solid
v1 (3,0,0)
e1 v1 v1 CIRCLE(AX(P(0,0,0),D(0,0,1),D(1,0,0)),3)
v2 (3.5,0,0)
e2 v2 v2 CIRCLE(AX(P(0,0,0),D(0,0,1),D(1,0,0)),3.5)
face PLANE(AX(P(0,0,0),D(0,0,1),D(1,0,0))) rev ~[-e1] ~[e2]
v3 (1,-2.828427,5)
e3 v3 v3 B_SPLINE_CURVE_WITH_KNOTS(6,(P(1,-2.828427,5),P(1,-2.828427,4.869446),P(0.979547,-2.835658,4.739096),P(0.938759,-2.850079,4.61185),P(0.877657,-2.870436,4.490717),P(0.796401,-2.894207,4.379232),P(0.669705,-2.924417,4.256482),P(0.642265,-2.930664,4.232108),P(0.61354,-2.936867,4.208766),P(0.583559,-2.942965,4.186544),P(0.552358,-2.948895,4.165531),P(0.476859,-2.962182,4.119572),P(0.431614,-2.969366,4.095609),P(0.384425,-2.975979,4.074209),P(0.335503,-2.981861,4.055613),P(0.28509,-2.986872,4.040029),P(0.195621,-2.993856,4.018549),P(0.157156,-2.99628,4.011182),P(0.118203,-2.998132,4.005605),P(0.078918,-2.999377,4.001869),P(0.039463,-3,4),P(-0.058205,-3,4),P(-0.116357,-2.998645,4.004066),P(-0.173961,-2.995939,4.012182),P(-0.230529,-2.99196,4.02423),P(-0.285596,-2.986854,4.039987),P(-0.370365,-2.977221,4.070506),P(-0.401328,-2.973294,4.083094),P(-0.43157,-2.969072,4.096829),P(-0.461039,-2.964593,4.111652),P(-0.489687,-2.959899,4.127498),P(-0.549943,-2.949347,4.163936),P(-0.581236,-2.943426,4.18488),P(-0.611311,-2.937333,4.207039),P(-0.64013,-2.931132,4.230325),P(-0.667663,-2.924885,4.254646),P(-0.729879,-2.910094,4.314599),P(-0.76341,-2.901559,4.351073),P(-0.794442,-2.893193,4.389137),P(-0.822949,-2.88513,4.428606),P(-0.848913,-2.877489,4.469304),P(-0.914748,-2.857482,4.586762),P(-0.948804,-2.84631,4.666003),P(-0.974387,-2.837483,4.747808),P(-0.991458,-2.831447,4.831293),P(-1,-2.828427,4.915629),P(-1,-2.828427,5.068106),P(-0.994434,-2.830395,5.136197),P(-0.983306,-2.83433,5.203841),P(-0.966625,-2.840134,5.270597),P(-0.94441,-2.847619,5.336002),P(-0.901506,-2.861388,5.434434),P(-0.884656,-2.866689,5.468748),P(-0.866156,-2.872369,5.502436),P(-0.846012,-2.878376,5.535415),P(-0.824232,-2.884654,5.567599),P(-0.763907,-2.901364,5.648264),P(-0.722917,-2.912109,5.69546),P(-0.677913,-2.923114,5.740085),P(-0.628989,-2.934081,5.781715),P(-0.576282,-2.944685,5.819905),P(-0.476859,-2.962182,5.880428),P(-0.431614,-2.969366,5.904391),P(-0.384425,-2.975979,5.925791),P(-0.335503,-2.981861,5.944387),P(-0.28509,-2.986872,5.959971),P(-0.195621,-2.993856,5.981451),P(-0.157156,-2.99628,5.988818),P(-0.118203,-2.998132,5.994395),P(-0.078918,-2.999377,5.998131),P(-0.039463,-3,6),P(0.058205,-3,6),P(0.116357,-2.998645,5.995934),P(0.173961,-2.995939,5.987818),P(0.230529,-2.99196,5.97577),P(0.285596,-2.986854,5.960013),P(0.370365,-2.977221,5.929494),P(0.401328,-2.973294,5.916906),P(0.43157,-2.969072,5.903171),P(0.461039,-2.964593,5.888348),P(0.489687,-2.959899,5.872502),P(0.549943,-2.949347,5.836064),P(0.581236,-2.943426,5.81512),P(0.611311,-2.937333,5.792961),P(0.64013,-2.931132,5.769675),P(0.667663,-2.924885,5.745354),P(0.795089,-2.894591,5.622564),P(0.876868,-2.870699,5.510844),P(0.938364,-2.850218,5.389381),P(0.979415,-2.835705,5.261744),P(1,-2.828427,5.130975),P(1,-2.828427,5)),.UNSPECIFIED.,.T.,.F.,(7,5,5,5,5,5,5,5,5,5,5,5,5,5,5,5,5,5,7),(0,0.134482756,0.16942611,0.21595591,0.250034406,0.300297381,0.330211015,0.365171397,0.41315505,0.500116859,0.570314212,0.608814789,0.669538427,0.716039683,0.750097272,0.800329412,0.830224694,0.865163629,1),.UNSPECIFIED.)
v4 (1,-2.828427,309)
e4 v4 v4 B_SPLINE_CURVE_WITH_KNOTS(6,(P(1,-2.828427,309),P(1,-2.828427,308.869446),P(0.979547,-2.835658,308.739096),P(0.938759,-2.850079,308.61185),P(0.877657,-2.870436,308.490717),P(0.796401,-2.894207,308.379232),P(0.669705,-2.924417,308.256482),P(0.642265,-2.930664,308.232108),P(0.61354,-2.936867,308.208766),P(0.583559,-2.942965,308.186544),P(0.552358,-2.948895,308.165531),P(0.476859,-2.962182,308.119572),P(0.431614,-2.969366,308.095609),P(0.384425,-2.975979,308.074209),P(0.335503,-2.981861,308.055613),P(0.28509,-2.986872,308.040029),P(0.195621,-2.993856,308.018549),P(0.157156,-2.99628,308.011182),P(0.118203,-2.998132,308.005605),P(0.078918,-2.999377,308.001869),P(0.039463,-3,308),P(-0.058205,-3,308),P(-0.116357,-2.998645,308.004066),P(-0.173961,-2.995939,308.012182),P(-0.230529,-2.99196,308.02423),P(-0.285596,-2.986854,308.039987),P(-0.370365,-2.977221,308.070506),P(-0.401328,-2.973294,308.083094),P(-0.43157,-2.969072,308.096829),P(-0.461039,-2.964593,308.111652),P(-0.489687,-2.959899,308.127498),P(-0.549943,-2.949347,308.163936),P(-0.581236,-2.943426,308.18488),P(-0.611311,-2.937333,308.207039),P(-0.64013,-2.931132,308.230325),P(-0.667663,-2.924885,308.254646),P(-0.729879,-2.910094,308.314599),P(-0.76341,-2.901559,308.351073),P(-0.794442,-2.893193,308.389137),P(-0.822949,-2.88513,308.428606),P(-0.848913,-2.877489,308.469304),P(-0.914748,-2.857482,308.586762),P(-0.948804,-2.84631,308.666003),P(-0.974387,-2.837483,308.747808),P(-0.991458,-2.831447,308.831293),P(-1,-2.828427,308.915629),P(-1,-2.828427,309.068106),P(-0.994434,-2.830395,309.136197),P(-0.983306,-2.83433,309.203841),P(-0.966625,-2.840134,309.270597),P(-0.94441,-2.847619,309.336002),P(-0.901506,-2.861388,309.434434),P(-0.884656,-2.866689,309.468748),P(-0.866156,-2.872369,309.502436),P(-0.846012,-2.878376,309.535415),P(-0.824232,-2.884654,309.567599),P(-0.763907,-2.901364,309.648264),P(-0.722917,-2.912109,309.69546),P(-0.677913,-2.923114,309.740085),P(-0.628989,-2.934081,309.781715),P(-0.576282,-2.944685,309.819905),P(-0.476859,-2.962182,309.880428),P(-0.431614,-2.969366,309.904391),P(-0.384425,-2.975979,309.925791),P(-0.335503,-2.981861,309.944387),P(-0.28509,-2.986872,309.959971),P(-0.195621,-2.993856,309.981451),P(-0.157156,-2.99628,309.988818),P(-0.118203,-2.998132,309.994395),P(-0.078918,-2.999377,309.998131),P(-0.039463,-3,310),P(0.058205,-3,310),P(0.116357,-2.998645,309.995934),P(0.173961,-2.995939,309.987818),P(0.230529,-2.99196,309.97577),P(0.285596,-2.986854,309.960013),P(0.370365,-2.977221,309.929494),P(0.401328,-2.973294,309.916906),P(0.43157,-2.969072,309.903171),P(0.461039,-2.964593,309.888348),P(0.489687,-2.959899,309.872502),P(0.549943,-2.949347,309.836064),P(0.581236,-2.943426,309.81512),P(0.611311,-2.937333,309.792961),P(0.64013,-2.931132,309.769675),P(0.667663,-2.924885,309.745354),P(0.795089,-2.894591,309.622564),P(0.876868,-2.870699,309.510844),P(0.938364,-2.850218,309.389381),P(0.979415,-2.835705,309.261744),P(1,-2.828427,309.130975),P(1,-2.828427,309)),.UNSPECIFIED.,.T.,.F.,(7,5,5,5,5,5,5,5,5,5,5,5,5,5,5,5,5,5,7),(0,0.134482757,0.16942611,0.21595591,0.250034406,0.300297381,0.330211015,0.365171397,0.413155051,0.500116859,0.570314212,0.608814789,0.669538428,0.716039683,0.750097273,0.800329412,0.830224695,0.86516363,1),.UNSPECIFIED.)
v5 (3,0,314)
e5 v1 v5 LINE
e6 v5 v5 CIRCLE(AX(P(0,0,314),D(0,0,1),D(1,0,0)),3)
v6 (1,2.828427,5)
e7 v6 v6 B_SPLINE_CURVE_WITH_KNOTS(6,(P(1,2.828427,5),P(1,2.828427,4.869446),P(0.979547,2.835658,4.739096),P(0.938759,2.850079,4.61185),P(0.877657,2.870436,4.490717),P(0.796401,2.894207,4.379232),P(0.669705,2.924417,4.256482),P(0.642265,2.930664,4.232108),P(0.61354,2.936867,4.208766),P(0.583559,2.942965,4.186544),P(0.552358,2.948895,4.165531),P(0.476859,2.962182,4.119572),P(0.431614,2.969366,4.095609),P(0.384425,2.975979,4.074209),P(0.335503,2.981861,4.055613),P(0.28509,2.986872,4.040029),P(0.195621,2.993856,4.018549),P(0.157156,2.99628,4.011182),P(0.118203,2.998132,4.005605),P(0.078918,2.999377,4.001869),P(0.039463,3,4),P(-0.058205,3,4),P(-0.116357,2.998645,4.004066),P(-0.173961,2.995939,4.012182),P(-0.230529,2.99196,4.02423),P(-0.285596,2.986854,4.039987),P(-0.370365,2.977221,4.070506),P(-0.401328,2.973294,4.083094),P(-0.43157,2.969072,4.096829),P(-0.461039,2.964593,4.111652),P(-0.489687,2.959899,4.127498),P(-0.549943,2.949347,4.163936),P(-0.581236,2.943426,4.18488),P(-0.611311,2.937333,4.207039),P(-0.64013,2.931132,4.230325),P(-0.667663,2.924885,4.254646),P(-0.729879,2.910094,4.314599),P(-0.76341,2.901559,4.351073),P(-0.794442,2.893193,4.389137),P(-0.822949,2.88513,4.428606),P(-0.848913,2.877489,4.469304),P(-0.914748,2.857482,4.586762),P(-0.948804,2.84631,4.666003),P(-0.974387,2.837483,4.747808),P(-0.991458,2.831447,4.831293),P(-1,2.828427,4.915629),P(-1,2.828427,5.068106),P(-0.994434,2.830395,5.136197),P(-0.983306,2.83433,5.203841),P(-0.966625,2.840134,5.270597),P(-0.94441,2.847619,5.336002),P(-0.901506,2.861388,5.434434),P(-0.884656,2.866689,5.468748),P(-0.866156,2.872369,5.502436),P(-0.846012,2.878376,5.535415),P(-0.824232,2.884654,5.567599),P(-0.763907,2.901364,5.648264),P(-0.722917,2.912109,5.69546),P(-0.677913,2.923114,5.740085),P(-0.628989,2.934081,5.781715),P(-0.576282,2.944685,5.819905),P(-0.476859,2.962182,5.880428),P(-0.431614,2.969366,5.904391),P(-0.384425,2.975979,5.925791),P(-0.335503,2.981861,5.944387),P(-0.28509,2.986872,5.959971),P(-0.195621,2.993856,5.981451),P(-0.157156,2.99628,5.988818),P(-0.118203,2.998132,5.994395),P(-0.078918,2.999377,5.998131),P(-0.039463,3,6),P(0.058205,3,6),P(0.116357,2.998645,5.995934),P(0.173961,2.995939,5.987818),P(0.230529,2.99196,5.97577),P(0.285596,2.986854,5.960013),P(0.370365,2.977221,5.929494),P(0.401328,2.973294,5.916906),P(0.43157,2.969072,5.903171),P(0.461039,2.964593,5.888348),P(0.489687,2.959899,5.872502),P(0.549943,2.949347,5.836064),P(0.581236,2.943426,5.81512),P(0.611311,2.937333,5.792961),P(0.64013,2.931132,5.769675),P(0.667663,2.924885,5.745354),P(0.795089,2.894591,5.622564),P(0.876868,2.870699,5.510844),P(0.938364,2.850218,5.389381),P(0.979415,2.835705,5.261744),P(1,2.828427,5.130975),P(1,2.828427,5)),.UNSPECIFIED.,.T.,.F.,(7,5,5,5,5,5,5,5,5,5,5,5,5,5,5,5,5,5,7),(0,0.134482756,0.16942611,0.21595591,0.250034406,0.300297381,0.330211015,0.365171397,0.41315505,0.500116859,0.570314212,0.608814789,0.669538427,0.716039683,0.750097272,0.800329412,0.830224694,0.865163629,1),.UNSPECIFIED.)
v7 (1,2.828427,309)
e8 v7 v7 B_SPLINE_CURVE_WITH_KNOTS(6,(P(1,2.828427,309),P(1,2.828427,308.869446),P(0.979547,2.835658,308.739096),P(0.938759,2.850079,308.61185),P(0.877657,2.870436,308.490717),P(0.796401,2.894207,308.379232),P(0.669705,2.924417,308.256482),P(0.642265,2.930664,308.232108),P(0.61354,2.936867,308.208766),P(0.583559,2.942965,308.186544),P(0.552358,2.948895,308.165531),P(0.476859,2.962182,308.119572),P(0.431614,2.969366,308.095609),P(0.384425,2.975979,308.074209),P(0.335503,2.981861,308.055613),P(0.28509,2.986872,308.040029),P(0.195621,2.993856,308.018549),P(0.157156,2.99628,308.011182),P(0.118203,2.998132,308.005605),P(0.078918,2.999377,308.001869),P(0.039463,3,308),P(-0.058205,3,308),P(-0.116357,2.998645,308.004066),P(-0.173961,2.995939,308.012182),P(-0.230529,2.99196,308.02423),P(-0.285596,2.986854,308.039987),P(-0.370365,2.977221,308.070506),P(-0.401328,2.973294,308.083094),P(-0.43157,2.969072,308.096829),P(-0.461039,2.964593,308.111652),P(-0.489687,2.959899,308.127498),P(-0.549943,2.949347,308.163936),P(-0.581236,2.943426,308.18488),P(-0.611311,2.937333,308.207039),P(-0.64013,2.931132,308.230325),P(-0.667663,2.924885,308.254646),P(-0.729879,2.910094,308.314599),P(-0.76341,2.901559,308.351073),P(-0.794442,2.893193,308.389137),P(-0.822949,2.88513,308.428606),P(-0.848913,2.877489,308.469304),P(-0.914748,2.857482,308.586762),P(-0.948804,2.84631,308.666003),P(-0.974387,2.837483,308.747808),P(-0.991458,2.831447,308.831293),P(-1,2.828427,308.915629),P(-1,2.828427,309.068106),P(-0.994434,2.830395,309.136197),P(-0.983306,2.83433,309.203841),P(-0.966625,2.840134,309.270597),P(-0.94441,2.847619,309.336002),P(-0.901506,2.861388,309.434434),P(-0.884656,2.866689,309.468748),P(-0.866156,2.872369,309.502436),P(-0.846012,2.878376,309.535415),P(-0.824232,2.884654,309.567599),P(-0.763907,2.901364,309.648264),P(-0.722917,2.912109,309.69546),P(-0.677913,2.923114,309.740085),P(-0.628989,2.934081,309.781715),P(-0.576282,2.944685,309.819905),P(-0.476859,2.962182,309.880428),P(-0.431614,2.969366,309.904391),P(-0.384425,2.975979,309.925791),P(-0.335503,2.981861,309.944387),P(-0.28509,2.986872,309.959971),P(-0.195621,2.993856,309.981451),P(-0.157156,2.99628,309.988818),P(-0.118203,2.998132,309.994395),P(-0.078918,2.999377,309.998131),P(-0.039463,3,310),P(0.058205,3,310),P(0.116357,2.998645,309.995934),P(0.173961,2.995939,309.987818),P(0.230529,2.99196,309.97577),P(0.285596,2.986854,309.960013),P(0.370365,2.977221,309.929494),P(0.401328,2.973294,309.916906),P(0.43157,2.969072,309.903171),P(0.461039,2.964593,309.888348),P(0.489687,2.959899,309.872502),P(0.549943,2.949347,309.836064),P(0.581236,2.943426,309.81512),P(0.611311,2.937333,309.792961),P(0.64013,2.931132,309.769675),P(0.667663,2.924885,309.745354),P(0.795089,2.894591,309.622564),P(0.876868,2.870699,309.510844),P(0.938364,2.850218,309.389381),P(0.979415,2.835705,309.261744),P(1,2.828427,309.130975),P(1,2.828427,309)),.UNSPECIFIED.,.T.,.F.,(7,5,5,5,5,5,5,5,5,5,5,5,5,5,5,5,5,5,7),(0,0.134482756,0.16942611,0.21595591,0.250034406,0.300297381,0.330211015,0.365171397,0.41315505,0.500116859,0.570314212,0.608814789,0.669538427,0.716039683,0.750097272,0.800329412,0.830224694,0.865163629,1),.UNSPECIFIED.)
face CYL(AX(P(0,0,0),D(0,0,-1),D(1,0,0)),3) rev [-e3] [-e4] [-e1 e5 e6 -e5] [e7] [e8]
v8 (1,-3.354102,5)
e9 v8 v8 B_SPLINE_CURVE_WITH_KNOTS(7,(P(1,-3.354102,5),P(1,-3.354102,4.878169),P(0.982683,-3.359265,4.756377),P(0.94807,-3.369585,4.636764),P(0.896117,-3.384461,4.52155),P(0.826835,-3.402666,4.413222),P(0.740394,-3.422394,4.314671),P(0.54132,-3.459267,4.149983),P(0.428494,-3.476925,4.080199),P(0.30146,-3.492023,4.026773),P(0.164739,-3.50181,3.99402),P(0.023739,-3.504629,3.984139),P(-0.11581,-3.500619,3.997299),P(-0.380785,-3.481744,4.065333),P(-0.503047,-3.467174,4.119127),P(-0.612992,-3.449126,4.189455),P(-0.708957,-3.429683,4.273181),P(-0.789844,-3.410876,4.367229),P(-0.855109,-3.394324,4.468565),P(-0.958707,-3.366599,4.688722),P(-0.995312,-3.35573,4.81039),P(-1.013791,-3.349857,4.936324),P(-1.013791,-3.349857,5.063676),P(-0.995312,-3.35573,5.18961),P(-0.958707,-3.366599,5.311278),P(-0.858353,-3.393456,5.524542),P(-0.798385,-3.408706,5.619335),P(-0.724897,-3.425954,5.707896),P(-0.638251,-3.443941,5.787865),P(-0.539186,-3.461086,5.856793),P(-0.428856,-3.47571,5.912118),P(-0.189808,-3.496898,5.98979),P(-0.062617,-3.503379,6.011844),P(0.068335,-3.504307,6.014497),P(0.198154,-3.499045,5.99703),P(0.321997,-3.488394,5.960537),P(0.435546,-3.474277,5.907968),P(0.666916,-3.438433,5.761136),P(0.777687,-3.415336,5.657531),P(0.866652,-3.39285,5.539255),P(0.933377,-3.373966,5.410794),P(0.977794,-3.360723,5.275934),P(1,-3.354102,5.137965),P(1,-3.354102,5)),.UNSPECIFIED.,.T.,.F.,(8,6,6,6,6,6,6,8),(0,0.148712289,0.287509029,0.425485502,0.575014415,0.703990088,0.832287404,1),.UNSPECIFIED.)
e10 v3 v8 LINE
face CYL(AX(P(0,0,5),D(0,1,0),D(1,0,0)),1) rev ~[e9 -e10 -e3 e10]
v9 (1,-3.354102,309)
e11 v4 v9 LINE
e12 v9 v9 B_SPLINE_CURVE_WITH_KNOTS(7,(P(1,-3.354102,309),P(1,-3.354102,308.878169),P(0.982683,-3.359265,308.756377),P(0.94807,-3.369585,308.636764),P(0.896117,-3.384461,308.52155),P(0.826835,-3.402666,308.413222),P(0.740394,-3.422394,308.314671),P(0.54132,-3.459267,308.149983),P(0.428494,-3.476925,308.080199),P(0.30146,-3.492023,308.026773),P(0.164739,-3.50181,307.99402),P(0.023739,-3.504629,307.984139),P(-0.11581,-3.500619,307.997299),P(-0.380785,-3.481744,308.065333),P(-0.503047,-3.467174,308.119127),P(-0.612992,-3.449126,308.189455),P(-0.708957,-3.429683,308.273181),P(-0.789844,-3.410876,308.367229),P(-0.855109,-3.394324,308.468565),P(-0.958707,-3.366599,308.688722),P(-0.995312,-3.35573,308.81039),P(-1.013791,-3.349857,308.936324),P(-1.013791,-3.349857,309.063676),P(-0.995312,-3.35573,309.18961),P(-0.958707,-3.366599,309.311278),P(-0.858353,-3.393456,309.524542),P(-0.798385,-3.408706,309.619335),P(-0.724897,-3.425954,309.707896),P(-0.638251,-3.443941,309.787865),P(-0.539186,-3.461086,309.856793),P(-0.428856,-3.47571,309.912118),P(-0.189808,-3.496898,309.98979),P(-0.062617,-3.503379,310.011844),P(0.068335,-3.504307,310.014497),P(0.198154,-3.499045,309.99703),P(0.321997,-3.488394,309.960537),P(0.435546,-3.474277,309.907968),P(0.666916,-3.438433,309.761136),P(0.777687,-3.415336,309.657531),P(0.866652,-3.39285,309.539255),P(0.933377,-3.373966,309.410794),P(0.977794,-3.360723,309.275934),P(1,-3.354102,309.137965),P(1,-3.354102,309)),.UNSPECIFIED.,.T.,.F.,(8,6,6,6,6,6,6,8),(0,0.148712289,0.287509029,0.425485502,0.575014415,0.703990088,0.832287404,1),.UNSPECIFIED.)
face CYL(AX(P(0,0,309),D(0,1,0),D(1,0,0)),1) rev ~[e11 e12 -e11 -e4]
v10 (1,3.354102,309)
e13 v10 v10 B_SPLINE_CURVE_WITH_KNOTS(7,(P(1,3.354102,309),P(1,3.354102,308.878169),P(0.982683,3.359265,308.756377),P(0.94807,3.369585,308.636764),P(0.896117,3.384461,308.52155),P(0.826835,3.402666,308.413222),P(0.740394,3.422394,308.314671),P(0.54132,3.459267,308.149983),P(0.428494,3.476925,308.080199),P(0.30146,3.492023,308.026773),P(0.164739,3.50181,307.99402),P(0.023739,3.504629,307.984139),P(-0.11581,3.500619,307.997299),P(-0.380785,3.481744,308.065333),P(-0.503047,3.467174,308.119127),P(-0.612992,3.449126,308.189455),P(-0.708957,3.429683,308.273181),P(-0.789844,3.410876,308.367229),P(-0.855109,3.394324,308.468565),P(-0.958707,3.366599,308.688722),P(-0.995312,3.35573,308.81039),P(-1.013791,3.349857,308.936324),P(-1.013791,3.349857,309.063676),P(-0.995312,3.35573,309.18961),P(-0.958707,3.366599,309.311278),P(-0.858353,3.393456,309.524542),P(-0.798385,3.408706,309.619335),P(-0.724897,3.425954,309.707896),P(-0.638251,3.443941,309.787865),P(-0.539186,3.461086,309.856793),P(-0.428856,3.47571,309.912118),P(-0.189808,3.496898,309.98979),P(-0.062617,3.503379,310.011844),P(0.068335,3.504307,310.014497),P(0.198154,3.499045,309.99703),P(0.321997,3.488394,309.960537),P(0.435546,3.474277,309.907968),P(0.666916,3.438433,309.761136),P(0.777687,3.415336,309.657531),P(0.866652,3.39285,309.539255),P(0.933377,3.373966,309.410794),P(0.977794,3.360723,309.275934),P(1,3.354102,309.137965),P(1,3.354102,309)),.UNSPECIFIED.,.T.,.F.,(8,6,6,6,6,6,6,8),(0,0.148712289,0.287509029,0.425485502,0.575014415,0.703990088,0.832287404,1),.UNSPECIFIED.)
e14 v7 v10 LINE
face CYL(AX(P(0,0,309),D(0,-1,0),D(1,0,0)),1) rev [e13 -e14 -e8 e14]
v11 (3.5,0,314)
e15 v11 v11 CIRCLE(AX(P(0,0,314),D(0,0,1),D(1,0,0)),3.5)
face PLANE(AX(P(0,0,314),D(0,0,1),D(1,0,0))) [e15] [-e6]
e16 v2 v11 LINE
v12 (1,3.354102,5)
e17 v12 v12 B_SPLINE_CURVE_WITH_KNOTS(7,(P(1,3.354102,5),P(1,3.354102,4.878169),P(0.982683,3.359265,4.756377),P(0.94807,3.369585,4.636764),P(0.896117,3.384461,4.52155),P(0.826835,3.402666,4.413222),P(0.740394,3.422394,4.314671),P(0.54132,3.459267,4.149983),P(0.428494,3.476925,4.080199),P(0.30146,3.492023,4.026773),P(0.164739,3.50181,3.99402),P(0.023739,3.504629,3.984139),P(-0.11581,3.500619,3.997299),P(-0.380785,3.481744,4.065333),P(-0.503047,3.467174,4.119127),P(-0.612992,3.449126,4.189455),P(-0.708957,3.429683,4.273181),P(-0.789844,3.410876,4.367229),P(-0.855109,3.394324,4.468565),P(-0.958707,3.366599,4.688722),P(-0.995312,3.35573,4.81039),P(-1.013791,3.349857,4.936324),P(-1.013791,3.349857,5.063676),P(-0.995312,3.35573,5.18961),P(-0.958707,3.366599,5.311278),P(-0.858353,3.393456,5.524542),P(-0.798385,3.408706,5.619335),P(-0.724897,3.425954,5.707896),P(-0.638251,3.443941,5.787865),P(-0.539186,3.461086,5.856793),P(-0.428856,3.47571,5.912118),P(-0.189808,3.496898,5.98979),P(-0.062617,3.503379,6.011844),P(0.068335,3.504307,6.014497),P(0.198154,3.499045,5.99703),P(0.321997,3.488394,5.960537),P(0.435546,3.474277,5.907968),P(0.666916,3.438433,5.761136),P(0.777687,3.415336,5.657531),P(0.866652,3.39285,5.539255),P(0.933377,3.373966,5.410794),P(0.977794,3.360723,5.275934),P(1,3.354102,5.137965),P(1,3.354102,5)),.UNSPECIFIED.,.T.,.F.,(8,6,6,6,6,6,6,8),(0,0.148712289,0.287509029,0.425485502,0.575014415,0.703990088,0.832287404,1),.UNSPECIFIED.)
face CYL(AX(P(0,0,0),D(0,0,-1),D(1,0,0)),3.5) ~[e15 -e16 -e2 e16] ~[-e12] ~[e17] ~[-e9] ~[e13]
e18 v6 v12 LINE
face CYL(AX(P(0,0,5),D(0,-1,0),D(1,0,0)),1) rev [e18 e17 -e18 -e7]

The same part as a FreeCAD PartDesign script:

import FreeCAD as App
import Part
import Sketcher
from FreeCAD import Vector
Q = App.Units.Quantity

doc = App.newDocument("Part")
body = doc.addObject("PartDesign::Body", "Body")

# Sketch on XY plane
sketch1 = doc.addObject("Sketcher::SketchObject", "Sketch")
body.addObject(sketch1)
sketch1.AttachmentSupport = (doc.XY_Plane, [""])
sketch1.MapMode = "FlatFace"
sketch1.addGeometry(Part.Circle(Vector(0, 0, 0), Vector(0, 0, 1), 3.5), False)
sketch1.addGeometry(Part.Circle(Vector(0, 0, 0), Vector(0, 0, 1), 3), False)
sketch1.addConstraint(Sketcher.Constraint("Coincident", 0, 3, -1, 1))
sketch1.addConstraint(Sketcher.Constraint("Coincident", 1, 3, -1, 1))
sketch1.addConstraint(Sketcher.Constraint("Diameter", 0, Q("7 mm")))
sketch1.addConstraint(Sketcher.Constraint("Diameter", 1, Q("6 mm")))
pad1 = doc.addObject("PartDesign::Pad", "Pad")
body.addObject(pad1)
pad1.Profile = sketch1
pad1.Length = 314

# Sketch on XZ plane
sketch2 = doc.addObject("Sketcher::SketchObject", "Sketch001")
body.addObject(sketch2)
sketch2.AttachmentSupport = (doc.XZ_Plane, [""])
sketch2.MapMode = "FlatFace"
sketch2.addGeometry(Part.Circle(Vector(0, 309, 0), Vector(0, 0, 1), 1), False)
sketch2.addGeometry(Part.Circle(Vector(0, 5, 0), Vector(0, 0, 1), 1), False)
sketch2.addConstraint(Sketcher.Constraint("Equal", 0, 1))
sketch2.addConstraint(Sketcher.Constraint("PointOnObject", 0, 3, -2))
sketch2.addConstraint(Sketcher.Constraint("PointOnObject", 1, 3, -2))
sketch2.addConstraint(Sketcher.Constraint("Diameter", 0, Q("2 mm")))
sketch2.addConstraint(Sketcher.Constraint("DistanceY", -1, 1, 0, 3, Q("309 mm")))
sketch2.addConstraint(Sketcher.Constraint("DistanceY", -1, 1, 1, 3, Q("5 mm")))
pocket1 = doc.addObject("PartDesign::Pocket", "Pocket")
body.addObject(pocket1)
pocket1.Profile = sketch2
pocket1.Type = "ThroughAll"
pocket1.Midplane = True

doc.recompute()
